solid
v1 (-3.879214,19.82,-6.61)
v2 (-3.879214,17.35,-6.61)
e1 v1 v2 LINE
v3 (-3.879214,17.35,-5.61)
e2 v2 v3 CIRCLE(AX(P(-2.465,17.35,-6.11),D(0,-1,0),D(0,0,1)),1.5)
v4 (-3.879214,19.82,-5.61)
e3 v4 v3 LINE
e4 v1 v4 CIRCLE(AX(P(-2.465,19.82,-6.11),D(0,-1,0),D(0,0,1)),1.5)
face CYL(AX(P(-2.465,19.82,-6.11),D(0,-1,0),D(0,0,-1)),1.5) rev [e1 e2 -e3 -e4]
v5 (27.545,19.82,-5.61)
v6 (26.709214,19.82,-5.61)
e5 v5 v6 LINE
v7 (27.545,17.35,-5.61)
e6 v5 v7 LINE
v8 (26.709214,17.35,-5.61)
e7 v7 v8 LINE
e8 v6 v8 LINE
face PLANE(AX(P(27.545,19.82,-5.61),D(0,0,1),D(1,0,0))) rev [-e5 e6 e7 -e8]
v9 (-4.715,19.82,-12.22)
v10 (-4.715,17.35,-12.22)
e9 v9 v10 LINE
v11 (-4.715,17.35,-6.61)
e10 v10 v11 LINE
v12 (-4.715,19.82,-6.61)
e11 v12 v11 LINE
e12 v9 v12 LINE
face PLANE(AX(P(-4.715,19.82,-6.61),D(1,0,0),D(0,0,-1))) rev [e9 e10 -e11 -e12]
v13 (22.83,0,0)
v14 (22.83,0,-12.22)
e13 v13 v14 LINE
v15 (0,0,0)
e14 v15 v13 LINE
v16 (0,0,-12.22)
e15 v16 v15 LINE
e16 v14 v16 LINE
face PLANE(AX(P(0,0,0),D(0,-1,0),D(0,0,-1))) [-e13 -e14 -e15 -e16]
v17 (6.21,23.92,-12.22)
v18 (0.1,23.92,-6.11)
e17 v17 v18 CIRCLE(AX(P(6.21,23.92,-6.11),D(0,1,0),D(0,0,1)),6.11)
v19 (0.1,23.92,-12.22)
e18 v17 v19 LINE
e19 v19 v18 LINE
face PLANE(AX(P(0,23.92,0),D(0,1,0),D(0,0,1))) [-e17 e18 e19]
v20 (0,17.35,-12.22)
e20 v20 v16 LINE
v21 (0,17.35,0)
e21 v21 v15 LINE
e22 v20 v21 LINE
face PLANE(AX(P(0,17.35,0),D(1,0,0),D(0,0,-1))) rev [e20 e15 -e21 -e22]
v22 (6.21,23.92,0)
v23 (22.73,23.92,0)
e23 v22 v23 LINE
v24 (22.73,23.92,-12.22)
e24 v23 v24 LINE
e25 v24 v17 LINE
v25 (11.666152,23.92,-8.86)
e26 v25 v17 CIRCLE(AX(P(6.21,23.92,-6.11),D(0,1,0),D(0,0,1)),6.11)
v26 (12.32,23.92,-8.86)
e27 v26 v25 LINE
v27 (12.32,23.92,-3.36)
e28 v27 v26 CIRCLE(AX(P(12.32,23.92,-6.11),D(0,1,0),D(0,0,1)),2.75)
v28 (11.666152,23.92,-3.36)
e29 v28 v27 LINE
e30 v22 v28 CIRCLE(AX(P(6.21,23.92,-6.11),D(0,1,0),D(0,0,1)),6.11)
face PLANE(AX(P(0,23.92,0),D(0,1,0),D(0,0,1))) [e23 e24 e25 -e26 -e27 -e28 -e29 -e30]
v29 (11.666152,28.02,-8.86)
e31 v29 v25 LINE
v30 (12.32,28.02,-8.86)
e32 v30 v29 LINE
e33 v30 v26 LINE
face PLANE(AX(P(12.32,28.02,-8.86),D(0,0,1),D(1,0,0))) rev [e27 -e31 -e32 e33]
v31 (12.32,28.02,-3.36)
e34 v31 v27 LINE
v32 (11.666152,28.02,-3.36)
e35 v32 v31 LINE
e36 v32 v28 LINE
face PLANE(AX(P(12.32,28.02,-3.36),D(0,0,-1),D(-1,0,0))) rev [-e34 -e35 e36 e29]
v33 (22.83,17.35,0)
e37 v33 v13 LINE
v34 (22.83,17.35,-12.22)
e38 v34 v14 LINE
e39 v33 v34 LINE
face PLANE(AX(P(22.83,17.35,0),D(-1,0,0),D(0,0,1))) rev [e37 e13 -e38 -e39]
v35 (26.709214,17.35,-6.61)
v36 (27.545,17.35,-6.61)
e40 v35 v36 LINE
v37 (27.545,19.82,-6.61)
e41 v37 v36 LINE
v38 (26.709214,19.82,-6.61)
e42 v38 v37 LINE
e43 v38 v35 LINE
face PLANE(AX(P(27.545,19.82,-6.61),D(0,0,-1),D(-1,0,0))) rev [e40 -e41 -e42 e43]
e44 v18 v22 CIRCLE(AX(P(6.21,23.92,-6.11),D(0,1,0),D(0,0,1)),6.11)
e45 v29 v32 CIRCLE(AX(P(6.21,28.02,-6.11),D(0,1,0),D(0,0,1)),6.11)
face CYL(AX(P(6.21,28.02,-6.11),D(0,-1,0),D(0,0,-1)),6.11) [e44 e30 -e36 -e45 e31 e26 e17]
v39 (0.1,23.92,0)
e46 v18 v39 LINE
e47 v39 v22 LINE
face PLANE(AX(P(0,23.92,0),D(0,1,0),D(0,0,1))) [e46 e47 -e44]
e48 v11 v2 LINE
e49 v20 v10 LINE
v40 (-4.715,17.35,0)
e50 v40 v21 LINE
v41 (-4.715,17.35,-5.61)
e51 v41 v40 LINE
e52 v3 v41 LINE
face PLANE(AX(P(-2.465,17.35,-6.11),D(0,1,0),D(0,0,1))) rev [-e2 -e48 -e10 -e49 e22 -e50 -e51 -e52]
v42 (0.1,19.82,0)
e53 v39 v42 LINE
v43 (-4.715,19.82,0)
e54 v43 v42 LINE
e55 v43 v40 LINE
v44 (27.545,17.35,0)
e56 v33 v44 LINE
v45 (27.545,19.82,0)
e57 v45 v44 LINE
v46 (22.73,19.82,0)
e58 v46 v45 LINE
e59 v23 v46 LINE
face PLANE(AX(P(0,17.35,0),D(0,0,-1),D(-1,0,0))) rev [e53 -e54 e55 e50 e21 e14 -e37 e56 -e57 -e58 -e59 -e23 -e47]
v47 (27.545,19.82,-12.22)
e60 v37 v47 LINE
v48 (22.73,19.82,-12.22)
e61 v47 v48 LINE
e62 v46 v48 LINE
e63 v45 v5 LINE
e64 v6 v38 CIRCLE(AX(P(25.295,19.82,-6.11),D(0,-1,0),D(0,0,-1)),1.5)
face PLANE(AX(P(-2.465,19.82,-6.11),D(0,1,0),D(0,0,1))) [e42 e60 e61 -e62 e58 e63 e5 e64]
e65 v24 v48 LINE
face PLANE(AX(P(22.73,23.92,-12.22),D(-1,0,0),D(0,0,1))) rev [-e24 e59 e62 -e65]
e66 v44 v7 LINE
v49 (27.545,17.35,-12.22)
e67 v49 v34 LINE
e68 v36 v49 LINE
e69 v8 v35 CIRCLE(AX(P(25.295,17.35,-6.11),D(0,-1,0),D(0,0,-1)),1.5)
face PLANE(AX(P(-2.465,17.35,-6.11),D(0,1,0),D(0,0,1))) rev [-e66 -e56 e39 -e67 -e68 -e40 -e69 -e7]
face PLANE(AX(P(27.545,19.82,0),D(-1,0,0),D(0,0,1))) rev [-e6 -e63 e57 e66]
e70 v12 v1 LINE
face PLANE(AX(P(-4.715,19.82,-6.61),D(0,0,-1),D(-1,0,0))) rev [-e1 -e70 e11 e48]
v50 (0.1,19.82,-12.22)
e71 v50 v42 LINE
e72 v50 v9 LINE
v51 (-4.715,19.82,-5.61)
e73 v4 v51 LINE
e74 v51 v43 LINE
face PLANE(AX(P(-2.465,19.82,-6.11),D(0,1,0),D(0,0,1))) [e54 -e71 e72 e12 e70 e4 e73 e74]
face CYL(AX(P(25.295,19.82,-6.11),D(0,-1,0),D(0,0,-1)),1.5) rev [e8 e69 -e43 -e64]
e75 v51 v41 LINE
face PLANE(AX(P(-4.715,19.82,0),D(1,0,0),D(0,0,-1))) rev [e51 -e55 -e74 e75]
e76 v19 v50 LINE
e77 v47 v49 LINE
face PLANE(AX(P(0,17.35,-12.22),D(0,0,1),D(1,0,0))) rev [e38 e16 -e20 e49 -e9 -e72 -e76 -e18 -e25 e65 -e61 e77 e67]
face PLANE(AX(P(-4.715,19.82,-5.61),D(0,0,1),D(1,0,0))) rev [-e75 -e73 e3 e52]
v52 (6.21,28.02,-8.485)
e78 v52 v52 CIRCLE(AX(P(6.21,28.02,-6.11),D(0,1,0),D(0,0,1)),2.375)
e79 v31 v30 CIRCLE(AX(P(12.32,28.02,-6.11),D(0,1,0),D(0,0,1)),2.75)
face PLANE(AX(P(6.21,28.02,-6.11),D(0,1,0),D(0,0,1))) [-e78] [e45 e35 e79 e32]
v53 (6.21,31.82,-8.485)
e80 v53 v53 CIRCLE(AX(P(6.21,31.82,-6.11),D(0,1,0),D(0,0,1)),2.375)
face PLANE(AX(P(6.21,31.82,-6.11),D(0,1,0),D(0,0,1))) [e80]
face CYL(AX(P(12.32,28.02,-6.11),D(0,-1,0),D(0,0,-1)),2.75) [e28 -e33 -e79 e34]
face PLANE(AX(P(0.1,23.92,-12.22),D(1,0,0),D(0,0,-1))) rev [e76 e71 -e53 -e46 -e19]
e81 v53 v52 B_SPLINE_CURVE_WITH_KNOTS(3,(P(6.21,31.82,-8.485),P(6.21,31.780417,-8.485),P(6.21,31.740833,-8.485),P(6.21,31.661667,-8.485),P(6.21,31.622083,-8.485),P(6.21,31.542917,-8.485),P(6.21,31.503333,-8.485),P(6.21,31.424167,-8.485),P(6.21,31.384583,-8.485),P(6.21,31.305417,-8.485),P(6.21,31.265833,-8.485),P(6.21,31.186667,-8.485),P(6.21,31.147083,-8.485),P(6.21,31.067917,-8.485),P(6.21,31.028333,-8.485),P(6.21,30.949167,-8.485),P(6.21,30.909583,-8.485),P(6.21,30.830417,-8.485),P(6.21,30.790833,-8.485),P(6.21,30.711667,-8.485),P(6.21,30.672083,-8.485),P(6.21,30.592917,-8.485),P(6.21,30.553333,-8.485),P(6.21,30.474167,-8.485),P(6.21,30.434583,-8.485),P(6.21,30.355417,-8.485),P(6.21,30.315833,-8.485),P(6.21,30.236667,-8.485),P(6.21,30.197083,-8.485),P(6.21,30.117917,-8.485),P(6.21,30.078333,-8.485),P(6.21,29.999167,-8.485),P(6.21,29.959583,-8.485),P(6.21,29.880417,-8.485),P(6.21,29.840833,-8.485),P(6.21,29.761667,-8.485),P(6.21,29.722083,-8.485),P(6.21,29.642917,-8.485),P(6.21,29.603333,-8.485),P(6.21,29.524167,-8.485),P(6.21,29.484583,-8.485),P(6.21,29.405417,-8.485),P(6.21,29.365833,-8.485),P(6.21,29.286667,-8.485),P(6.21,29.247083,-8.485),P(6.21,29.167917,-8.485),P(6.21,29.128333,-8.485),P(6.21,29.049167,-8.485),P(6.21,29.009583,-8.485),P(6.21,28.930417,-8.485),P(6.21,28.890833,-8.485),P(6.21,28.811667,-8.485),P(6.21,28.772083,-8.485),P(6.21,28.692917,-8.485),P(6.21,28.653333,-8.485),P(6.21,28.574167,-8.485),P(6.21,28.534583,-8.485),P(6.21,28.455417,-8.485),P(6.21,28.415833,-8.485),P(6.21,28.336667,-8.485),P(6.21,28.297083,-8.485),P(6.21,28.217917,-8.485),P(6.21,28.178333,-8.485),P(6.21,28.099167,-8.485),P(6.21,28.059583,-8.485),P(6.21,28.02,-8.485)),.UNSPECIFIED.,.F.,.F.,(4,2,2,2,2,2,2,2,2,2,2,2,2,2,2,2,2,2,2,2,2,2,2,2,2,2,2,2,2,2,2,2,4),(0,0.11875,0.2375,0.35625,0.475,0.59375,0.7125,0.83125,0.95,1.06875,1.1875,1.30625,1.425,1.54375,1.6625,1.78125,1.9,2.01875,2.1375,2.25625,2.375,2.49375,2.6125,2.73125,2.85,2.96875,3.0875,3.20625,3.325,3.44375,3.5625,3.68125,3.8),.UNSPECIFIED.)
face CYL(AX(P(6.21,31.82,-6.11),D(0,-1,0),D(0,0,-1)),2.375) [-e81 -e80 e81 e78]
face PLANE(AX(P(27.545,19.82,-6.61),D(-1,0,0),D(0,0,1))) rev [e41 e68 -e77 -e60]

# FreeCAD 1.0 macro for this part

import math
import FreeCAD as App
import Part
import Sketcher
Q = App.Units.Quantity

doc = App.newDocument("Part")
body = doc.addObject("PartDesign::Body", "Body")

sketch1 = body.newObject("Sketcher::SketchObject", "Sketch")
sketch1.AttachmentSupport = (doc.getObject("XZ_Plane"), [""])
sketch1.MapMode = "FlatFace"
sketch1.addGeometry(Part.LineSegment(App.Vector(0, -12, 0), App.Vector(0, 0, 0)), False)
sketch1.addGeometry(Part.LineSegment(App.Vector(0, 0, 0), App.Vector(23, 0, 0)), False)
sketch1.addGeometry(Part.LineSegment(App.Vector(23, 0, 0), App.Vector(23, -12, 0)), False)
sketch1.addGeometry(Part.LineSegment(App.Vector(23, -12, 0), App.Vector(0, -12, 0)), False)
sketch1.addConstraint(Sketcher.Constraint("Coincident", 0, 2, 1, 1))
sketch1.addConstraint(Sketcher.Constraint("Coincident", 1, 2, 2, 1))
sketch1.addConstraint(Sketcher.Constraint("Coincident", 2, 2, 3, 1))
sketch1.addConstraint(Sketcher.Constraint("Coincident", 3, 2, 0, 1))
sketch1.addConstraint(Sketcher.Constraint("Vertical", 0))
sketch1.addConstraint(Sketcher.Constraint("Horizontal", 1))
sketch1.addConstraint(Sketcher.Constraint("Vertical", 2))
sketch1.addConstraint(Sketcher.Constraint("Horizontal", 3))
sketch1.addConstraint(Sketcher.Constraint("Coincident", 0, 2, -1, 1))
sketch1.addConstraint(Sketcher.Constraint("DistanceX", 1, 1, 1, 2, Q("22.83 mm")))
sketch1.addConstraint(Sketcher.Constraint("DistanceY", 0, 1, 0, 2, Q("12.22 mm")))
pad1 = body.newObject("PartDesign::Pad", "Pad")
pad1.Profile = sketch1
pad1.Length = 17.35
pad1.Reversed = True

sketch2 = body.newObject("Sketcher::SketchObject", "Sketch001")
sketch2.AttachmentSupport = (doc.getObject("XZ_Plane"), [""])
sketch2.MapMode = "FlatFace"
sketch2.AttachmentOffset = App.Placement(App.Vector(0, 0, -17.35), App.Rotation())
sketch2.addGeometry(Part.LineSegment(App.Vector(-4.7, 0, 0), App.Vector(27.5, 0, 0)), False)
sketch2.addGeometry(Part.LineSegment(App.Vector(27.5, 0, 0), App.Vector(27.5, -5.6, 0)), False)
sketch2.addGeometry(Part.LineSegment(App.Vector(27.5, -5.6, 0), App.Vector(26.7, -5.6, 0)), False)
sketch2.addGeometry(Part.ArcOfCircle(Part.Circle(App.Vector(25.3, -6.1, 0), App.Vector(0, 0, 1), 1.5), math.radians(19), math.radians(341)), False)
sketch2.addGeometry(Part.LineSegment(App.Vector(26.7, -6.6, 0), App.Vector(27.5, -6.6, 0)), False)
sketch2.addGeometry(Part.LineSegment(App.Vector(27.5, -6.6, 0), App.Vector(27.5, -12.2, 0)), False)
sketch2.addGeometry(Part.LineSegment(App.Vector(27.5, -12.2, 0), App.Vector(-4.7, -12.2, 0)), False)
sketch2.addGeometry(Part.LineSegment(App.Vector(-4.7, -12.2, 0), App.Vector(-4.7, -6.6, 0)), False)
sketch2.addGeometry(Part.LineSegment(App.Vector(-4.7, -6.6, 0), App.Vector(-3.9, -6.6, 0)), False)
sketch2.addGeometry(Part.ArcOfCircle(Part.Circle(App.Vector(-2.5, -6.1, 0), App.Vector(0, 0, 1), 1.5), math.radians(-161), math.radians(161)), False)
sketch2.addGeometry(Part.LineSegment(App.Vector(-3.9, -5.6, 0), App.Vector(-4.7, -5.6, 0)), False)
sketch2.addGeometry(Part.LineSegment(App.Vector(-4.7, -5.6, 0), App.Vector(-4.7, 0, 0)), False)
sketch2.addConstraint(Sketcher.Constraint("Coincident", 0, 2, 1, 1))
sketch2.addConstraint(Sketcher.Constraint("Coincident", 1, 2, 2, 1))
sketch2.addConstraint(Sketcher.Constraint("Coincident", 2, 2, 3, 1))
sketch2.addConstraint(Sketcher.Constraint("Coincident", 3, 2, 4, 1))
sketch2.addConstraint(Sketcher.Constraint("Coincident", 4, 2, 5, 1))
sketch2.addConstraint(Sketcher.Constraint("Coincident", 5, 2, 6, 1))
sketch2.addConstraint(Sketcher.Constraint("Coincident", 6, 2, 7, 1))
sketch2.addConstraint(Sketcher.Constraint("Coincident", 7, 2, 8, 1))
sketch2.addConstraint(Sketcher.Constraint("Coincident", 8, 2, 9, 1))
sketch2.addConstraint(Sketcher.Constraint("Coincident", 9, 2, 10, 1))
sketch2.addConstraint(Sketcher.Constraint("Coincident", 10, 2, 11, 1))
sketch2.addConstraint(Sketcher.Constraint("Coincident", 11, 2, 0, 1))
sketch2.addConstraint(Sketcher.Constraint("Horizontal", 0))
sketch2.addConstraint(Sketcher.Constraint("Vertical", 1))
sketch2.addConstraint(Sketcher.Constraint("Horizontal", 2))
sketch2.addConstraint(Sketcher.Constraint("Horizontal", 4))
sketch2.addConstraint(Sketcher.Constraint("Vertical", 5))
sketch2.addConstraint(Sketcher.Constraint("Horizontal", 6))
sketch2.addConstraint(Sketcher.Constraint("Vertical", 7))
sketch2.addConstraint(Sketcher.Constraint("Horizontal", 8))
sketch2.addConstraint(Sketcher.Constraint("Horizontal", 10))
sketch2.addConstraint(Sketcher.Constraint("Vertical", 11))
sketch2.addConstraint(Sketcher.Constraint("Equal", 3, 9))
sketch2.addConstraint(Sketcher.Constraint("PointOnObject", 0, 2, -1))
sketch2.addConstraint(Sketcher.Constraint("Horizontal", 3, 3, 9, 3))
sketch2.addConstraint(Sketcher.Constraint("Horizontal", 4, 2, 7, 2))
sketch2.addConstraint(Sketcher.Constraint("Horizontal", 2, 2, 9, 2))
sketch2.addConstraint(Sketcher.Constraint("Vertical", 2, 2, 3, 2))
sketch2.addConstraint(Sketcher.Constraint("Vertical", 1, 2, 4, 2))
sketch2.addConstraint(Sketcher.Constraint("Vertical", 7, 2, 10, 2))
sketch2.addConstraint(Sketcher.Constraint("Equal", 4, 8))
sketch2.addConstraint(Sketcher.Constraint("Equal", 1, 5))
sketch2.addConstraint(Sketcher.Constraint("Radius", 3, Q("1.5 mm")))
sketch2.addConstraint(Sketcher.Constraint("DistanceY", 3, 2, 2, 2, Q("1 mm")))
sketch2.addConstraint(Sketcher.Constraint("DistanceX", 0, 1, 0, 2, Q("32.26 mm")))
sketch2.addConstraint(Sketcher.Constraint("DistanceY", 1, 2, 1, 1, Q("5.61 mm")))
sketch2.addConstraint(Sketcher.Constraint("DistanceX", 9, 3, 3, 3, Q("27.76 mm")))
sketch2.addConstraint(Sketcher.Constraint("DistanceX", -1, 1, 3, 3, Q("25.295 mm")))
pad2 = body.newObject("PartDesign::Pad", "Pad001")
pad2.Profile = sketch2
pad2.Length = 2.47
pad2.Reversed = True

sketch3 = body.newObject("Sketcher::SketchObject", "Sketch002")
sketch3.AttachmentSupport = (doc.getObject("XZ_Plane"), [""])
sketch3.MapMode = "FlatFace"
sketch3.AttachmentOffset = App.Placement(App.Vector(0, 0, -19.82), App.Rotation())
sketch3.addGeometry(Part.LineSegment(App.Vector(0, -12, 0), App.Vector(0, 0, 0)), False)
sketch3.addGeometry(Part.LineSegment(App.Vector(0, 0, 0), App.Vector(23, 0, 0)), False)
sketch3.addGeometry(Part.LineSegment(App.Vector(23, 0, 0), App.Vector(23, -12, 0)), False)
sketch3.addGeometry(Part.LineSegment(App.Vector(23, -12, 0), App.Vector(0, -12, 0)), False)
sketch3.addConstraint(Sketcher.Constraint("Coincident", 0, 2, 1, 1))
sketch3.addConstraint(Sketcher.Constraint("Coincident", 1, 2, 2, 1))
sketch3.addConstraint(Sketcher.Constraint("Coincident", 2, 2, 3, 1))
sketch3.addConstraint(Sketcher.Constraint("Coincident", 3, 2, 0, 1))
sketch3.addConstraint(Sketcher.Constraint("Vertical", 0))
sketch3.addConstraint(Sketcher.Constraint("Horizontal", 1))
sketch3.addConstraint(Sketcher.Constraint("Vertical", 2))
sketch3.addConstraint(Sketcher.Constraint("Horizontal", 3))
sketch3.addConstraint(Sketcher.Constraint("PointOnObject", 0, 2, -1))
sketch3.addConstraint(Sketcher.Constraint("DistanceX", 1, 1, 1, 2, Q("22.63 mm")))
sketch3.addConstraint(Sketcher.Constraint("DistanceY", 0, 1, 0, 2, Q("12.22 mm")))
sketch3.addConstraint(Sketcher.Constraint("DistanceX", -1, 1, 0, 2, Q("0.1 mm")))
pad3 = body.newObject("PartDesign::Pad", "Pad002")
pad3.Profile = sketch3
pad3.Length = 4.1
pad3.Reversed = True

sketch4 = body.newObject("Sketcher::SketchObject", "Sketch003")
sketch4.AttachmentSupport = (doc.getObject("XZ_Plane"), [""])
sketch4.MapMode = "FlatFace"
sketch4.AttachmentOffset = App.Placement(App.Vector(0, 0, -23.92), App.Rotation())
sketch4.addGeometry(Part.LineSegment(App.Vector(11.7, -3.4, 0), App.Vector(12.3, -3.4, 0)), False)
sketch4.addGeometry(Part.ArcOfCircle(Part.Circle(App.Vector(12.3, -6.1, 0), App.Vector(0, 0, 1), 2.8), math.radians(-90), math.radians(90)), False)
sketch4.addGeometry(Part.LineSegment(App.Vector(12.3, -8.9, 0), App.Vector(11.7, -8.9, 0)), False)
sketch4.addGeometry(Part.ArcOfCircle(Part.Circle(App.Vector(6.2, -6.1, 0), App.Vector(0, 0, 1), 6.1), math.radians(27), math.radians(333)), False)
sketch4.addConstraint(Sketcher.Constraint("Tangent", 0, 2, 1, 2))
sketch4.addConstraint(Sketcher.Constraint("Tangent", 1, 1, 2, 1))
sketch4.addConstraint(Sketcher.Constraint("Coincident", 2, 2, 3, 2))
sketch4.addConstraint(Sketcher.Constraint("Coincident", 3, 1, 0, 1))
sketch4.addConstraint(Sketcher.Constraint("Horizontal", 0))
sketch4.addConstraint(Sketcher.Constraint("Horizontal", 2))
sketch4.addConstraint(Sketcher.Constraint("Horizontal", 1, 3, 3, 3))
sketch4.addConstraint(Sketcher.Constraint("Radius", 1, Q("2.75 mm")))
sketch4.addConstraint(Sketcher.Constraint("Radius", 3, Q("6.11 mm")))
sketch4.addConstraint(Sketcher.Constraint("DistanceX", -1, 1, 1, 3, Q("12.32 mm")))
sketch4.addConstraint(Sketcher.Constraint("DistanceY", 1, 3, -1, 1, Q("6.11 mm")))
sketch4.addConstraint(Sketcher.Constraint("DistanceX", -1, 1, 3, 3, Q("6.21 mm")))
pad4 = body.newObject("PartDesign::Pad", "Pad003")
pad4.Profile = sketch4
pad4.Length = 4.1
pad4.Reversed = True

sketch5 = body.newObject("Sketcher::SketchObject", "Sketch004")
sketch5.AttachmentSupport = (doc.getObject("XZ_Plane"), [""])
sketch5.MapMode = "FlatFace"
sketch5.AttachmentOffset = App.Placement(App.Vector(0, 0, -28.02), App.Rotation())
sketch5.addGeometry(Part.Circle(App.Vector(6.2, -6.1, 0), App.Vector(0, 0, 1), 2.4), False)
sketch5.addConstraint(Sketcher.Constraint("Diameter", 0, Q("4.75 mm")))
sketch5.addConstraint(Sketcher.Constraint("DistanceX", -1, 1, 0, 3, Q("6.21 mm")))
sketch5.addConstraint(Sketcher.Constraint("DistanceY", 0, 3, -1, 1, Q("6.11 mm")))
pad5 = body.newObject("PartDesign::Pad", "Pad004")
pad5.Profile = sketch5
pad5.Length = 3.8
pad5.Reversed = True

doc.recompute()
